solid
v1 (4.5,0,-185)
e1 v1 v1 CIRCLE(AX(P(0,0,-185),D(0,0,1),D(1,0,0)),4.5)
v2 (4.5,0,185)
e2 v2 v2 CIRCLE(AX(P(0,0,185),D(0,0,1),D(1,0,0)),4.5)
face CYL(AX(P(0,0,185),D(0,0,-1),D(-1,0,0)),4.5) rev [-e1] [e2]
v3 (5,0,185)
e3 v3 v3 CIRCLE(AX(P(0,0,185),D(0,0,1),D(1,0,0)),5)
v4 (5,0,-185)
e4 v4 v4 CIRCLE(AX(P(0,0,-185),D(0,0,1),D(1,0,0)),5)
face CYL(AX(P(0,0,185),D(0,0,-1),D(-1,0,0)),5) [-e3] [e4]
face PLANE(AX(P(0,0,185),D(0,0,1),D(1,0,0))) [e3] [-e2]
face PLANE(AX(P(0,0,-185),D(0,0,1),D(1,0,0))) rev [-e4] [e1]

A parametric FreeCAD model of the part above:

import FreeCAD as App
import Part
import Sketcher

V = App.Vector
Q = App.Units.Quantity

doc = App.newDocument("Part")
params = doc.addObject("Spreadsheet::Sheet", "Params")
for row, (alias, value) in enumerate([
    ("sketch1_diameter", "10 mm"),
    ("sketch1_diameter2", "9 mm"),
    ("pad1_length", "370 mm"),
], start=1):
    params.set(f"A{row}", alias)
    params.set(f"B{row}", "=" + value)
    params.setAlias(f"B{row}", alias)

body = doc.addObject("PartDesign::Body", "Body")

# Sketch on XY plane
sketch1 = doc.addObject("Sketcher::SketchObject", "Sketch")
body.addObject(sketch1)
sketch1.AttachmentSupport = (doc.XY_Plane, [""])
sketch1.MapMode = "FlatFace"
sketch1.addGeometry([
    Part.Circle(V(0, 0, 0), V(0, 0, 1), 5),
    Part.Circle(V(0, 0, 0), V(0, 0, 1), 4.5),
], False)
sketch1.addConstraint([
    Sketcher.Constraint("Coincident", 0, 3, -1, 1),
    Sketcher.Constraint("Coincident", 1, 3, -1, 1),
    Sketcher.Constraint("Diameter", 0, Q("10 mm")),
    Sketcher.Constraint("Diameter", 1, Q("9 mm")),
])
sketch1.setExpression("Constraints[2]", "Params.sketch1_diameter")
sketch1.setExpression("Constraints[3]", "Params.sketch1_diameter2")
pad1 = doc.addObject("PartDesign::Pad", "Pad")
body.addObject(pad1)
pad1.Profile = sketch1
pad1.setExpression("Length", "Params.pad1_length")
pad1.Midplane = True

doc.recompute()
